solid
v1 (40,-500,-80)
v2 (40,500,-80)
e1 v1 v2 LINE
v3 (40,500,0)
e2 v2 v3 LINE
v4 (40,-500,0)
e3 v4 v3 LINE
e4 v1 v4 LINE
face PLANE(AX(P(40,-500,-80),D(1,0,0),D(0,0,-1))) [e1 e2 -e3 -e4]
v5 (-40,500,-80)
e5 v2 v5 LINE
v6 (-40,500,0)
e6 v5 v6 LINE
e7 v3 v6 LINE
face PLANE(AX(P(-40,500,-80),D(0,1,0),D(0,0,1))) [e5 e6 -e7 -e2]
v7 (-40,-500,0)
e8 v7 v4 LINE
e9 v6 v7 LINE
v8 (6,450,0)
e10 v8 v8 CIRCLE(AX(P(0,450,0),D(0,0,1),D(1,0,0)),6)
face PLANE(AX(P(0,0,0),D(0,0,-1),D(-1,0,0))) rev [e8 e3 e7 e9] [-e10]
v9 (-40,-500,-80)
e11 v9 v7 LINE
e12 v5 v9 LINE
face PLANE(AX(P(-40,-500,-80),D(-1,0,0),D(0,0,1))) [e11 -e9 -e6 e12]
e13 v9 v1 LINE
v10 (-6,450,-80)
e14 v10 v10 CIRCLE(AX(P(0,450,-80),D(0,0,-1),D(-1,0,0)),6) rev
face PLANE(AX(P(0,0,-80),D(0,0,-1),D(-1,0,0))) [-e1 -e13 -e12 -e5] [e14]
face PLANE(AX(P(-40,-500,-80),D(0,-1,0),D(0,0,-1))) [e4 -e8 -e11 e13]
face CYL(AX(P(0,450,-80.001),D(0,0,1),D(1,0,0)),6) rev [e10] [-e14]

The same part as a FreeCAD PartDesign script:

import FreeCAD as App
import Part
import Sketcher
from FreeCAD import Vector


def add_polygon(sketch, points):
    """Adds a closed chain of lines whose ends are joined by coincident constraints."""
    first, n = sketch.GeometryCount, len(points)
    for a, b in zip(points, points[1:] + points[:1]):
        sketch.addGeometry(Part.LineSegment(App.Vector(*a, 0), App.Vector(*b, 0)), False)
    for i in range(n):
        sketch.addConstraint(Sketcher.Constraint("Coincident", first + i, 2, first + (i + 1) % n, 1))

doc = App.newDocument("Part")
body = doc.addObject("PartDesign::Body", "Body")

# Sketch on XY plane
sketch1 = body.newObject("Sketcher::SketchObject", "Sketch")
sketch1.AttachmentSupport = (doc.getObject("XY_Plane"), [""])
sketch1.MapMode = "FlatFace"
add_polygon(sketch1, [(-40, 500), (-40, -500), (40, -500), (40, 500)])  # lines 0-3
sketch1.addConstraint([
    Sketcher.Constraint("Vertical", 0),
    Sketcher.Constraint("Horizontal", 1),
    Sketcher.Constraint("Vertical", 2),
    Sketcher.Constraint("Horizontal", 3),
    Sketcher.Constraint("Symmetric", 0, 2, 2, 2, -1, 1),
    Sketcher.Constraint("DistanceX", 1, 1, 1, 2, 80.0),
    Sketcher.Constraint("DistanceY", 0, 2, 0, 1, 1000.0),
])
pad1 = body.newObject("PartDesign::Pad", "Pad")
pad1.Profile = sketch1
pad1.Length = 80
pad1.Reversed = True

# Sketch on XY plane
sketch2 = body.newObject("Sketcher::SketchObject", "Sketch001")
sketch2.AttachmentSupport = (doc.getObject("XY_Plane"), [""])
sketch2.MapMode = "FlatFace"
sketch2.addGeometry(Part.Circle(Vector(0, 450, 0), Vector(0, 0, 1), 6), False)
sketch2.addConstraint([
    Sketcher.Constraint("PointOnObject", 0, 3, -2),
    Sketcher.Constraint("Diameter", 0, 12.0),
    Sketcher.Constraint("DistanceY", -1, 1, 0, 3, 450.0),
])
pocket1 = body.newObject("PartDesign::Pocket", "Pocket")
pocket1.Profile = sketch2
pocket1.Type = "UpToFirst"

doc.recompute()
